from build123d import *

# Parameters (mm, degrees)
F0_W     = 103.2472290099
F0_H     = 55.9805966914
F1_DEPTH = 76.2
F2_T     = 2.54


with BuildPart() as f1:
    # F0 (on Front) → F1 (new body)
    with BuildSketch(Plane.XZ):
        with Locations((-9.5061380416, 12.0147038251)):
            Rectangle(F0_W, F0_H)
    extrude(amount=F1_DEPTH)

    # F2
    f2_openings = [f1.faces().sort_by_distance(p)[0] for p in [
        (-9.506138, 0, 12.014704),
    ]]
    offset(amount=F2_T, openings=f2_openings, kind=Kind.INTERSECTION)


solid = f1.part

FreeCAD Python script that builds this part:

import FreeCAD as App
import Part
import Sketcher
from FreeCAD import Vector
Q = App.Units.Quantity


def faces_at(feature, points):
    """Names of the faces that lie closest to the given points."""
    faces = feature.Shape.Faces
    near = lambda p: min(range(len(faces)), key=lambda i: faces[i].distToShape(Part.Vertex(*p))[0])
    return sorted({f"Face{near(p) + 1}" for p in points})


def add_polygon(sketch, points):
    """Adds a closed chain of lines whose ends are joined by coincident constraints."""
    first, n = sketch.GeometryCount, len(points)
    for a, b in zip(points, points[1:] + points[:1]):
        sketch.addGeometry(Part.LineSegment(App.Vector(*a, 0), App.Vector(*b, 0)), False)
    for i in range(n):
        sketch.addConstraint(Sketcher.Constraint("Coincident", first + i, 2, first + (i + 1) % n, 1))

doc = App.newDocument("Part")
body = doc.addObject("PartDesign::Body", "Body")

# Sketch on XZ plane
sketch1 = doc.addObject("Sketcher::SketchObject", "Sketch")
body.addObject(sketch1)
sketch1.AttachmentSupport = (doc.XZ_Plane, [""])
sketch1.MapMode = "FlatFace"
add_polygon(sketch1, [(-61, 40), (-61, -16), (42, -16), (42, 40)])  # lines 0-3
sketch1.addConstraint([
    Sketcher.Constraint("Vertical", 0),
    Sketcher.Constraint("Horizontal", 1),
    Sketcher.Constraint("Vertical", 2),
    Sketcher.Constraint("Horizontal", 3),
    Sketcher.Constraint("DistanceY", -1, 1, 2, 2, Q("1.5750001 in")),
    Sketcher.Constraint("DistanceX", 1, 1, 1, 2, Q("103.247229 mm")),
    Sketcher.Constraint("DistanceY", 0, 2, 0, 1, Q("55.980597 mm")),
    Sketcher.Constraint("DistanceX", 0, 2, -1, 1, Q("61.129753 mm")),
])
pad1 = doc.addObject("PartDesign::Pad", "Pad")
body.addObject(pad1)
pad1.Profile = sketch1
pad1.Length = Q("3 in")
doc.recompute()

thickness = doc.addObject("PartDesign::Thickness", "Thickness")
body.addObject(thickness)
thickness.Base = (pad1, faces_at(pad1, [(-9.506, 0, 12.015)]))
thickness.Value = Q("0.1 in")
thickness.Reversed = False
thickness.Join = "Intersection"

doc.recompute()
